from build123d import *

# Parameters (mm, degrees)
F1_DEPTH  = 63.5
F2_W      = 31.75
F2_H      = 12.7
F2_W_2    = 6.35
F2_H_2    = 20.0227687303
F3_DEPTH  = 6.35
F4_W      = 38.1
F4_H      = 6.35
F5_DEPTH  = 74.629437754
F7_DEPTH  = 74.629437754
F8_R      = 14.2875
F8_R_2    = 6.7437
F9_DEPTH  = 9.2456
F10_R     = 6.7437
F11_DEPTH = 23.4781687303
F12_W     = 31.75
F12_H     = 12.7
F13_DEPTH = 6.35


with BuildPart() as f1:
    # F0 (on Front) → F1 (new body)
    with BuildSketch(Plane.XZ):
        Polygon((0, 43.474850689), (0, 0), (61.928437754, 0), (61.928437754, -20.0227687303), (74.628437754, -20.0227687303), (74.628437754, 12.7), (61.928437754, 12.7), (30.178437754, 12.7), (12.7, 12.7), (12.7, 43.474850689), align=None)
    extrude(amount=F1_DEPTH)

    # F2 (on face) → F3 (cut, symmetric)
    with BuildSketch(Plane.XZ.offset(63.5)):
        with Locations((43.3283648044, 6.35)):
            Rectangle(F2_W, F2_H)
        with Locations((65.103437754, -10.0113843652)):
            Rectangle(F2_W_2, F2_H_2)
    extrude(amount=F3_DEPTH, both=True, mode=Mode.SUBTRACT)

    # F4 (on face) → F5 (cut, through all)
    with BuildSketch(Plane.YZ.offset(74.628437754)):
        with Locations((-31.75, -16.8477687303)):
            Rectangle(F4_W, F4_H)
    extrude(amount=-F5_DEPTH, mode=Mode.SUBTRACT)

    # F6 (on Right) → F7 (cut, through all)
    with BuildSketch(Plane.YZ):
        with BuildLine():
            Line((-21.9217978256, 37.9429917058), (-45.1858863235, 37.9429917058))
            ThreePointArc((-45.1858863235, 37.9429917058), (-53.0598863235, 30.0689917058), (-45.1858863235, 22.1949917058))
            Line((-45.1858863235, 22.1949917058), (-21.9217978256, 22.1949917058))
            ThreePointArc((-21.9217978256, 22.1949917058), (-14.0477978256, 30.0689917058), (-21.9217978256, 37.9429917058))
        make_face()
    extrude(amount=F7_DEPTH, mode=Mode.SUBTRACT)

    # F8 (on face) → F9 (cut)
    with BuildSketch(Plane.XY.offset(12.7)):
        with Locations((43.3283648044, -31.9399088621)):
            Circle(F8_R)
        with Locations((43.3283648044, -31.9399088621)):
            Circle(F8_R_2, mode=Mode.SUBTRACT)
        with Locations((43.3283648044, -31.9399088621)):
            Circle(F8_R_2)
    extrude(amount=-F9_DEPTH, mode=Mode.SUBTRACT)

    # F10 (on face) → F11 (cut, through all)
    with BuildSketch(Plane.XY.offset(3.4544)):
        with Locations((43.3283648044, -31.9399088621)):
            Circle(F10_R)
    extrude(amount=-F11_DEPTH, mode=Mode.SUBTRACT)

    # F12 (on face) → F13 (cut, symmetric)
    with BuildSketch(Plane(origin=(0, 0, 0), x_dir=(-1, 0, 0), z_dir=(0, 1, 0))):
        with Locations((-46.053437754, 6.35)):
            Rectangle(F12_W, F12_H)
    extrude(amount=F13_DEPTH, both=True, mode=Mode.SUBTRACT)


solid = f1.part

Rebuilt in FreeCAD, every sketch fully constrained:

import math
import FreeCAD as App
import Part
import Sketcher
Q = App.Units.Quantity


def add_polygon(sketch, points):
    """Adds a closed chain of lines whose ends are joined by coincident constraints."""
    first, n = sketch.GeometryCount, len(points)
    for a, b in zip(points, points[1:] + points[:1]):
        sketch.addGeometry(Part.LineSegment(App.Vector(*a, 0), App.Vector(*b, 0)), False)
    for i in range(n):
        sketch.addConstraint(Sketcher.Constraint("Coincident", first + i, 2, first + (i + 1) % n, 1))

doc = App.newDocument("Part")
body = doc.addObject("PartDesign::Body", "Body")

sketch1 = body.newObject("Sketcher::SketchObject", "Sketch")
sketch1.AttachmentSupport = (doc.getObject("XZ_Plane"), [""])
sketch1.MapMode = "FlatFace"
add_polygon(sketch1, [(0, 43), (0, 0), (62, 0), (62, -20), (75, -20), (75, 13), (13, 13), (13, 43)])
sketch1.addConstraint([
    Sketcher.Constraint("Vertical", 0),
    Sketcher.Constraint("Horizontal", 1),
    Sketcher.Constraint("Vertical", 2),
    Sketcher.Constraint("Horizontal", 3),
    Sketcher.Constraint("Vertical", 4),
    Sketcher.Constraint("Horizontal", 5),
    Sketcher.Constraint("Vertical", 6),
    Sketcher.Constraint("Horizontal", 7),
    Sketcher.Constraint("Coincident", 0, 2, -1, 1),
    Sketcher.Constraint("Equal", 1, 5),
    Sketcher.Constraint("DistanceX", 3, 1, 3, 2, Q("0.5 in")),
    Sketcher.Constraint("DistanceY", -1, 1, 4, 2, Q("0.5 in")),
    Sketcher.Constraint("DistanceY", 0, 2, 0, 1, Q("43.474851 mm")),
    Sketcher.Constraint("DistanceY", 2, 2, 2, 1, Q("20.022769 mm")),
    Sketcher.Constraint("DistanceX", 1, 1, 1, 2, Q("61.928438 mm")),
])
pad1 = body.newObject("PartDesign::Pad", "Pad")
pad1.Profile = sketch1
pad1.Length = Q("2.5 in")

sketch2 = body.newObject("Sketcher::SketchObject", "Sketch001")
sketch2.AttachmentSupport = (doc.getObject("XZ_Plane"), [""])
sketch2.MapMode = "FlatFace"
sketch2.AttachmentOffset = App.Placement(App.Vector(0, 0, 2.5 * 25.4), App.Rotation())
add_polygon(sketch2, [(27, 13), (27, 0), (59, 0), (59, 13)])
add_polygon(sketch2, [(62, 0), (62, -20), (68, -20), (68, 0)])
sketch2.addConstraint([
    Sketcher.Constraint("Vertical", 0),
    Sketcher.Constraint("Horizontal", 1),
    Sketcher.Constraint("Vertical", 2),
    Sketcher.Constraint("Horizontal", 3),
    Sketcher.Constraint("Vertical", 4),
    Sketcher.Constraint("Horizontal", 5),
    Sketcher.Constraint("Vertical", 6),
    Sketcher.Constraint("Horizontal", 7),
    Sketcher.Constraint("PointOnObject", 0, 2, -1),
    Sketcher.Constraint("PointOnObject", 6, 2, -1),
    Sketcher.Constraint("DistanceY", 0, 2, 0, 1, Q("0.5 in")),
    Sketcher.Constraint("DistanceX", 1, 1, 1, 2, Q("1.25 in")),
    Sketcher.Constraint("DistanceX", 5, 1, 5, 2, Q("0.25 in")),
    Sketcher.Constraint("DistanceY", 4, 2, 4, 1, Q("20.022769 mm")),
    Sketcher.Constraint("DistanceX", -1, 1, 0, 2, Q("27.453365 mm")),
    Sketcher.Constraint("DistanceX", -1, 1, 4, 2, Q("61.928438 mm")),
])
pocket1 = body.newObject("PartDesign::Pocket", "Pocket")
pocket1.Profile = sketch2
pocket1.Length = Q("0.5 in")
pocket1.Midplane = True

sketch3 = body.newObject("Sketcher::SketchObject", "Sketch002")
sketch3.AttachmentSupport = (doc.getObject("YZ_Plane"), [""])
sketch3.MapMode = "FlatFace"
sketch3.AttachmentOffset = App.Placement(App.Vector(0, 0, 74.628438), App.Rotation())
add_polygon(sketch3, [(-51, -14), (-51, -20), (-13, -20), (-13, -14)])
sketch3.addConstraint([
    Sketcher.Constraint("Vertical", 0),
    Sketcher.Constraint("Horizontal", 1),
    Sketcher.Constraint("Vertical", 2),
    Sketcher.Constraint("Horizontal", 3),
    Sketcher.Constraint("DistanceX", 1, 1, 1, 2, Q("1.5 in")),
    Sketcher.Constraint("DistanceX", 0, 2, -1, 1, Q("2 in")),
    Sketcher.Constraint("DistanceY", 0, 2, 0, 1, Q("0.25 in")),
    Sketcher.Constraint("DistanceY", 0, 2, -1, 1, Q("20.022769 mm")),
])
pocket2 = body.newObject("PartDesign::Pocket", "Pocket001")
pocket2.Profile = sketch3
pocket2.Type = "ThroughAll"

sketch4 = body.newObject("Sketcher::SketchObject", "Sketch003")
sketch4.AttachmentSupport = (doc.getObject("YZ_Plane"), [""])
sketch4.MapMode = "FlatFace"
sketch4.addGeometry([
    Part.LineSegment(App.Vector(-22, 38, 0), App.Vector(-45, 38, 0)),
    Part.ArcOfCircle(Part.Circle(App.Vector(-45, 30, 0), App.Vector(0, 0, 1), 8), math.radians(90), math.radians(270)),
    Part.LineSegment(App.Vector(-45, 22, 0), App.Vector(-22, 22, 0)),
    Part.ArcOfCircle(Part.Circle(App.Vector(-22, 30, 0), App.Vector(0, 0, 1), 8), math.radians(-90), math.radians(90)),
], False)
sketch4.addConstraint([
    Sketcher.Constraint("Tangent", 0, 2, 1, 1),
    Sketcher.Constraint("Tangent", 1, 2, 2, 1),
    Sketcher.Constraint("Tangent", 2, 2, 3, 1),
    Sketcher.Constraint("Tangent", 3, 2, 0, 1),
    Sketcher.Constraint("Horizontal", 0),
    Sketcher.Constraint("Horizontal", 2),
    Sketcher.Constraint("Radius", 1, Q("0.31 in")),
    Sketcher.Constraint("DistanceX", 0, 2, 0, 1, Q("23.264088 mm")),
    Sketcher.Constraint("DistanceY", -1, 1, 1, 3, Q("30.068992 mm")),
    Sketcher.Constraint("DistanceX", 1, 3, -1, 1, Q("45.185886 mm")),
])
pocket3 = body.newObject("PartDesign::Pocket", "Pocket002")
pocket3.Profile = sketch4
pocket3.Type = "ThroughAll"
pocket3.Reversed = True

sketch5 = body.newObject("Sketcher::SketchObject", "Sketch004")
sketch5.AttachmentSupport = (doc.getObject("XY_Plane"), [""])
sketch5.MapMode = "FlatFace"
sketch5.AttachmentOffset = App.Placement(App.Vector(0, 0, 0.5 * 25.4), App.Rotation())
sketch5.addGeometry(Part.Circle(App.Vector(43, -32, 0), App.Vector(0, 0, 1), 14), False)
sketch5.addConstraint([
    Sketcher.Constraint("Diameter", 0, Q("1.125 in")),
    Sketcher.Constraint("DistanceY", 0, 3, -1, 1, Q("31.939909 mm")),
    Sketcher.Constraint("DistanceX", -1, 1, 0, 3, Q("43.328365 mm")),
])
pocket4 = body.newObject("PartDesign::Pocket", "Pocket003")
pocket4.Profile = sketch5
pocket4.Length = Q("0.364 in")

sketch6 = body.newObject("Sketcher::SketchObject", "Sketch005")
sketch6.AttachmentSupport = (doc.getObject("XY_Plane"), [""])
sketch6.MapMode = "FlatFace"
sketch6.AttachmentOffset = App.Placement(App.Vector(0, 0, 0.136 * 25.4), App.Rotation())
sketch6.addGeometry(Part.Circle(App.Vector(43, -32, 0), App.Vector(0, 0, 1), 7), False)
sketch6.addConstraint([
    Sketcher.Constraint("Diameter", 0, Q("0.531 in")),
    Sketcher.Constraint("DistanceY", 0, 3, -1, 1, Q("31.939909 mm")),
    Sketcher.Constraint("DistanceX", -1, 1, 0, 3, Q("43.328365 mm")),
])
pocket5 = body.newObject("PartDesign::Pocket", "Pocket004")
pocket5.Profile = sketch6
pocket5.Type = "ThroughAll"

sketch7 = body.newObject("Sketcher::SketchObject", "Sketch006")
sketch7.AttachmentSupport = (doc.getObject("XZ_Plane"), [""])
sketch7.MapMode = "FlatFace"
add_polygon(sketch7, [(62, 13), (62, 0), (30, 0), (30, 13)])
sketch7.addConstraint([
    Sketcher.Constraint("Vertical", 0),
    Sketcher.Constraint("Horizontal", 1),
    Sketcher.Constraint("Vertical", 2),
    Sketcher.Constraint("Horizontal", 3),
    Sketcher.Constraint("PointOnObject", 0, 2, -1),
    Sketcher.Constraint("DistanceY", 0, 2, 0, 1, Q("0.5 in")),
    Sketcher.Constraint("DistanceX", 1, 2, 1, 1, Q("1.25 in")),
    Sketcher.Constraint("DistanceX", -1, 1, 0, 2, Q("61.928438 mm")),
])
pocket6 = body.newObject("PartDesign::Pocket", "Pocket005")
pocket6.Profile = sketch7
pocket6.Length = Q("0.5 in")
pocket6.Midplane = True

doc.recompute()
